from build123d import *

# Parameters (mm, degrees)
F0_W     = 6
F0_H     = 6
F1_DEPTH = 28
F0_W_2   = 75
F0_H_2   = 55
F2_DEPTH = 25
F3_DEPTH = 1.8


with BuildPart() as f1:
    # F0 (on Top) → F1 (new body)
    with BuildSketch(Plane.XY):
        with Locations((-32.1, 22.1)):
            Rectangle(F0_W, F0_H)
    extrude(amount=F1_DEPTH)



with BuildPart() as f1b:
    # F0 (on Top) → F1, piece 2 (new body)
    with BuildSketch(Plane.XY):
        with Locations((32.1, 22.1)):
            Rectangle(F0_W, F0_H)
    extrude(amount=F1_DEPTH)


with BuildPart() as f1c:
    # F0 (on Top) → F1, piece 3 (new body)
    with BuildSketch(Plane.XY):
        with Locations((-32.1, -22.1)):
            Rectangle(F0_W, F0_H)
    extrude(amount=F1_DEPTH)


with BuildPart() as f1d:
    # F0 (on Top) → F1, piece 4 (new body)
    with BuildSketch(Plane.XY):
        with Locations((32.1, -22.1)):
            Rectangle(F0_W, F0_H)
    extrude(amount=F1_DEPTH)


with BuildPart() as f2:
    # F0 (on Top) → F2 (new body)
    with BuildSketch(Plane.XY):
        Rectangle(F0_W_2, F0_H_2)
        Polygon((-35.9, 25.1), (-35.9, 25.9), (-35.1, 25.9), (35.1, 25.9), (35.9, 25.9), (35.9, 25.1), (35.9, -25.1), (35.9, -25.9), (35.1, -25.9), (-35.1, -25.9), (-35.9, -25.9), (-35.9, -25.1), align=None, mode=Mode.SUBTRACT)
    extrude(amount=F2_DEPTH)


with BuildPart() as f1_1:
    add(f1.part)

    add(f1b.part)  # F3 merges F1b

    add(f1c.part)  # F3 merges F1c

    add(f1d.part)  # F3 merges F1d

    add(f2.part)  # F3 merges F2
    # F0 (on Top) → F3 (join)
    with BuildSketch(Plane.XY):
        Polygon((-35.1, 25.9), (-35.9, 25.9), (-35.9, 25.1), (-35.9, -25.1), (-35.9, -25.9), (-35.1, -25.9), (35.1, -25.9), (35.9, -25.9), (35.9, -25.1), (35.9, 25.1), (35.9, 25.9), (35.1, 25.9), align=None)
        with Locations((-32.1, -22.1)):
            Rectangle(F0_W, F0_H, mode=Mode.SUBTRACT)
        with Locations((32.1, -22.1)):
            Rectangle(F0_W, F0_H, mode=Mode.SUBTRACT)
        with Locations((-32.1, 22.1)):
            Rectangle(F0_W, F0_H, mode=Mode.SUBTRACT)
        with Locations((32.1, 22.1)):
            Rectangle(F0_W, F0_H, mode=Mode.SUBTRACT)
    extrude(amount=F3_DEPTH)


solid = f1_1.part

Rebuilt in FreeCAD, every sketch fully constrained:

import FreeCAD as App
import Part
import Sketcher

doc = App.newDocument("Part")
params = doc.addObject("Spreadsheet::Sheet", "Params")
for row, (alias, value) in enumerate([
    ("sketch1_width", "6 mm"),
    ("pad1_length", "28 mm"),
    ("sketch2_width", "6 mm"),
    ("pad2_length", "28 mm"),
    ("sketch3_width", "6 mm"),
    ("pad3_length", "28 mm"),
    ("sketch4_width", "6 mm"),
    ("pad4_length", "28 mm"),
    ("sketch5_width", "75 mm"),
    ("sketch5_height", "55 mm"),
    ("sketch5_width2", "71.8 mm"),
    ("sketch5_height2", "51.8 mm"),
    ("pad5_length", "25 mm"),
    ("sketch6_width", "6 mm"),
    ("sketch6_width2", "71.8 mm"),
    ("sketch6_height", "51.8 mm"),
    ("pad6_length", "1.8 mm"),
], start=1):
    params.set(f"A{row}", alias)
    params.set(f"B{row}", "=" + value)
    params.setAlias(f"B{row}", alias)

body = doc.addObject("PartDesign::Body", "Body")

sketch1 = body.newObject("Sketcher::SketchObject", "Sketch")
sketch1.AttachmentSupport = (doc.getObject("XY_Plane"), [""])
sketch1.MapMode = "FlatFace"
sketch1.addGeometry(Part.LineSegment(App.Vector(-35.1, 25.1, 0), App.Vector(-35.1, 19.1, 0)), False)
sketch1.addGeometry(Part.LineSegment(App.Vector(-35.1, 19.1, 0), App.Vector(-29.1, 19.1, 0)), False)
sketch1.addGeometry(Part.LineSegment(App.Vector(-29.1, 19.1, 0), App.Vector(-29.1, 25.1, 0)), False)
sketch1.addGeometry(Part.LineSegment(App.Vector(-29.1, 25.1, 0), App.Vector(-35.1, 25.1, 0)), False)
sketch1.addConstraint(Sketcher.Constraint("Coincident", 0, 2, 1, 1))
sketch1.addConstraint(Sketcher.Constraint("Coincident", 1, 2, 2, 1))
sketch1.addConstraint(Sketcher.Constraint("Coincident", 2, 2, 3, 1))
sketch1.addConstraint(Sketcher.Constraint("Coincident", 3, 2, 0, 1))
sketch1.addConstraint(Sketcher.Constraint("Vertical", 0))
sketch1.addConstraint(Sketcher.Constraint("Horizontal", 1))
sketch1.addConstraint(Sketcher.Constraint("Vertical", 2))
sketch1.addConstraint(Sketcher.Constraint("Horizontal", 3))
sketch1.addConstraint(Sketcher.Constraint("Equal", 3, 0))
sketch1.addConstraint(Sketcher.Constraint("DistanceX", 1, 1, 1, 2, 6.0))
sketch1.addConstraint(Sketcher.Constraint("DistanceX", 0, 2, -1, 1, 35.1))
sketch1.addConstraint(Sketcher.Constraint("DistanceY", -1, 1, 0, 2, 19.1))
sketch1.setExpression("Constraints[9]", "Params.sketch1_width")
pad1 = body.newObject("PartDesign::Pad", "Pad")
pad1.Profile = sketch1
pad1.setExpression("Length", "Params.pad1_length")
body2 = doc.addObject("PartDesign::Body", "Body001")

sketch2 = body2.newObject("Sketcher::SketchObject", "Sketch001")
sketch2.AttachmentSupport = (doc.getObject("XY_Plane001"), [""])
sketch2.MapMode = "FlatFace"
sketch2.addGeometry(Part.LineSegment(App.Vector(29.1, 25.1, 0), App.Vector(29.1, 19.1, 0)), False)
sketch2.addGeometry(Part.LineSegment(App.Vector(29.1, 19.1, 0), App.Vector(35.1, 19.1, 0)), False)
sketch2.addGeometry(Part.LineSegment(App.Vector(35.1, 19.1, 0), App.Vector(35.1, 25.1, 0)), False)
sketch2.addGeometry(Part.LineSegment(App.Vector(35.1, 25.1, 0), App.Vector(29.1, 25.1, 0)), False)
sketch2.addConstraint(Sketcher.Constraint("Coincident", 0, 2, 1, 1))
sketch2.addConstraint(Sketcher.Constraint("Coincident", 1, 2, 2, 1))
sketch2.addConstraint(Sketcher.Constraint("Coincident", 2, 2, 3, 1))
sketch2.addConstraint(Sketcher.Constraint("Coincident", 3, 2, 0, 1))
sketch2.addConstraint(Sketcher.Constraint("Vertical", 0))
sketch2.addConstraint(Sketcher.Constraint("Horizontal", 1))
sketch2.addConstraint(Sketcher.Constraint("Vertical", 2))
sketch2.addConstraint(Sketcher.Constraint("Horizontal", 3))
sketch2.addConstraint(Sketcher.Constraint("Equal", 3, 0))
sketch2.addConstraint(Sketcher.Constraint("DistanceX", 1, 1, 1, 2, 6.0))
sketch2.addConstraint(Sketcher.Constraint("DistanceX", -1, 1, 0, 2, 29.1))
sketch2.addConstraint(Sketcher.Constraint("DistanceY", -1, 1, 0, 2, 19.1))
sketch2.setExpression("Constraints[9]", "Params.sketch2_width")
pad2 = body2.newObject("PartDesign::Pad", "Pad001")
pad2.Profile = sketch2
pad2.setExpression("Length", "Params.pad2_length")
body3 = doc.addObject("PartDesign::Body", "Body002")

sketch3 = body3.newObject("Sketcher::SketchObject", "Sketch002")
sketch3.AttachmentSupport = (doc.getObject("XY_Plane002"), [""])
sketch3.MapMode = "FlatFace"
sketch3.addGeometry(Part.LineSegment(App.Vector(-35.1, -19.1, 0), App.Vector(-35.1, -25.1, 0)), False)
sketch3.addGeometry(Part.LineSegment(App.Vector(-35.1, -25.1, 0), App.Vector(-29.1, -25.1, 0)), False)
sketch3.addGeometry(Part.LineSegment(App.Vector(-29.1, -25.1, 0), App.Vector(-29.1, -19.1, 0)), False)
sketch3.addGeometry(Part.LineSegment(App.Vector(-29.1, -19.1, 0), App.Vector(-35.1, -19.1, 0)), False)
sketch3.addConstraint(Sketcher.Constraint("Coincident", 0, 2, 1, 1))
sketch3.addConstraint(Sketcher.Constraint("Coincident", 1, 2, 2, 1))
sketch3.addConstraint(Sketcher.Constraint("Coincident", 2, 2, 3, 1))
sketch3.addConstraint(Sketcher.Constraint("Coincident", 3, 2, 0, 1))
sketch3.addConstraint(Sketcher.Constraint("Vertical", 0))
sketch3.addConstraint(Sketcher.Constraint("Horizontal", 1))
sketch3.addConstraint(Sketcher.Constraint("Vertical", 2))
sketch3.addConstraint(Sketcher.Constraint("Horizontal", 3))
sketch3.addConstraint(Sketcher.Constraint("Equal", 3, 0))
sketch3.addConstraint(Sketcher.Constraint("DistanceX", 1, 1, 1, 2, 6.0))
sketch3.addConstraint(Sketcher.Constraint("DistanceX", 0, 2, -1, 1, 35.1))
sketch3.addConstraint(Sketcher.Constraint("DistanceY", 0, 2, -1, 1, 25.1))
sketch3.setExpression("Constraints[9]", "Params.sketch3_width")
pad3 = body3.newObject("PartDesign::Pad", "Pad002")
pad3.Profile = sketch3
pad3.setExpression("Length", "Params.pad3_length")
body4 = doc.addObject("PartDesign::Body", "Body003")

sketch4 = body4.newObject("Sketcher::SketchObject", "Sketch003")
sketch4.AttachmentSupport = (doc.getObject("XY_Plane003"), [""])
sketch4.MapMode = "FlatFace"
sketch4.addGeometry(Part.LineSegment(App.Vector(29.1, -19.1, 0), App.Vector(29.1, -25.1, 0)), False)
sketch4.addGeometry(Part.LineSegment(App.Vector(29.1, -25.1, 0), App.Vector(35.1, -25.1, 0)), False)
sketch4.addGeometry(Part.LineSegment(App.Vector(35.1, -25.1, 0), App.Vector(35.1, -19.1, 0)), False)
sketch4.addGeometry(Part.LineSegment(App.Vector(35.1, -19.1, 0), App.Vector(29.1, -19.1, 0)), False)
sketch4.addConstraint(Sketcher.Constraint("Coincident", 0, 2, 1, 1))
sketch4.addConstraint(Sketcher.Constraint("Coincident", 1, 2, 2, 1))
sketch4.addConstraint(Sketcher.Constraint("Coincident", 2, 2, 3, 1))
sketch4.addConstraint(Sketcher.Constraint("Coincident", 3, 2, 0, 1))
sketch4.addConstraint(Sketcher.Constraint("Vertical", 0))
sketch4.addConstraint(Sketcher.Constraint("Horizontal", 1))
sketch4.addConstraint(Sketcher.Constraint("Vertical", 2))
sketch4.addConstraint(Sketcher.Constraint("Horizontal", 3))
sketch4.addConstraint(Sketcher.Constraint("Equal", 3, 0))
sketch4.addConstraint(Sketcher.Constraint("DistanceX", 1, 1, 1, 2, 6.0))
sketch4.addConstraint(Sketcher.Constraint("DistanceX", -1, 1, 0, 2, 29.1))
sketch4.addConstraint(Sketcher.Constraint("DistanceY", 0, 2, -1, 1, 25.1))
sketch4.setExpression("Constraints[9]", "Params.sketch4_width")
pad4 = body4.newObject("PartDesign::Pad", "Pad003")
pad4.Profile = sketch4
pad4.setExpression("Length", "Params.pad4_length")
body5 = doc.addObject("PartDesign::Body", "Body004")

sketch5 = body5.newObject("Sketcher::SketchObject", "Sketch004")
sketch5.AttachmentSupport = (doc.getObject("XY_Plane004"), [""])
sketch5.MapMode = "FlatFace"
sketch5.addGeometry(Part.LineSegment(App.Vector(-37.5, 27.5, 0), App.Vector(-37.5, -27.5, 0)), False)
sketch5.addGeometry(Part.LineSegment(App.Vector(-37.5, -27.5, 0), App.Vector(37.5, -27.5, 0)), False)
sketch5.addGeometry(Part.LineSegment(App.Vector(37.5, -27.5, 0), App.Vector(37.5, 27.5, 0)), False)
sketch5.addGeometry(Part.LineSegment(App.Vector(37.5, 27.5, 0), App.Vector(-37.5, 27.5, 0)), False)
sketch5.addGeometry(Part.LineSegment(App.Vector(-35.9, -25.9, 0), App.Vector(-35.9, 25.9, 0)), False)
sketch5.addGeometry(Part.LineSegment(App.Vector(-35.9, 25.9, 0), App.Vector(35.9, 25.9, 0)), False)
sketch5.addGeometry(Part.LineSegment(App.Vector(35.9, 25.9, 0), App.Vector(35.9, -25.9, 0)), False)
sketch5.addGeometry(Part.LineSegment(App.Vector(35.9, -25.9, 0), App.Vector(-35.9, -25.9, 0)), False)
sketch5.addConstraint(Sketcher.Constraint("Coincident", 0, 2, 1, 1))
sketch5.addConstraint(Sketcher.Constraint("Coincident", 1, 2, 2, 1))
sketch5.addConstraint(Sketcher.Constraint("Coincident", 2, 2, 3, 1))
sketch5.addConstraint(Sketcher.Constraint("Coincident", 3, 2, 0, 1))
sketch5.addConstraint(Sketcher.Constraint("Coincident", 4, 2, 5, 1))
sketch5.addConstraint(Sketcher.Constraint("Coincident", 5, 2, 6, 1))
sketch5.addConstraint(Sketcher.Constraint("Coincident", 6, 2, 7, 1))
sketch5.addConstraint(Sketcher.Constraint("Coincident", 7, 2, 4, 1))
sketch5.addConstraint(Sketcher.Constraint("Vertical", 0))
sketch5.addConstraint(Sketcher.Constraint("Horizontal", 1))
sketch5.addConstraint(Sketcher.Constraint("Vertical", 2))
sketch5.addConstraint(Sketcher.Constraint("Horizontal", 3))
sketch5.addConstraint(Sketcher.Constraint("Vertical", 4))
sketch5.addConstraint(Sketcher.Constraint("Horizontal", 5))
sketch5.addConstraint(Sketcher.Constraint("Vertical", 6))
sketch5.addConstraint(Sketcher.Constraint("Horizontal", 7))
sketch5.addConstraint(Sketcher.Constraint("Symmetric", 0, 2, 2, 2, -1, 1))
sketch5.addConstraint(Sketcher.Constraint("Symmetric", 4, 2, 6, 2, -1, 1))
sketch5.addConstraint(Sketcher.Constraint("DistanceX", 1, 1, 1, 2, 75.0))
sketch5.addConstraint(Sketcher.Constraint("DistanceY", 0, 2, 0, 1, 55.0))
sketch5.addConstraint(Sketcher.Constraint("DistanceX", 5, 1, 5, 2, 71.8))
sketch5.addConstraint(Sketcher.Constraint("DistanceY", 4, 1, 4, 2, 51.8))
sketch5.setExpression("Constraints[18]", "Params.sketch5_width")
sketch5.setExpression("Constraints[19]", "Params.sketch5_height")
sketch5.setExpression("Constraints[20]", "Params.sketch5_width2")
sketch5.setExpression("Constraints[21]", "Params.sketch5_height2")
pad5 = body5.newObject("PartDesign::Pad", "Pad004")
pad5.Profile = sketch5
pad5.setExpression("Length", "Params.pad5_length")
body.AllowCompound = True
doc.recompute()

boolean = body.newObject("PartDesign::Boolean", "Boolean")
boolean.Type = "Fuse"
boolean.addObjects([body2])
doc.recompute()

boolean2 = body.newObject("PartDesign::Boolean", "Boolean001")
boolean2.Type = "Fuse"
boolean2.addObjects([body3])
doc.recompute()

boolean3 = body.newObject("PartDesign::Boolean", "Boolean002")
boolean3.Type = "Fuse"
boolean3.addObjects([body4])
doc.recompute()

boolean4 = body.newObject("PartDesign::Boolean", "Boolean003")
boolean4.Type = "Fuse"
boolean4.addObjects([body5])

sketch6 = body.newObject("Sketcher::SketchObject", "Sketch005")
sketch6.AttachmentSupport = (doc.getObject("XY_Plane"), [""])
sketch6.MapMode = "FlatFace"
sketch6.addGeometry(Part.LineSegment(App.Vector(-35.9, 25.9, 0), App.Vector(-35.9, -25.9, 0)), False)
sketch6.addGeometry(Part.LineSegment(App.Vector(-35.9, -25.9, 0), App.Vector(35.9, -25.9, 0)), False)
sketch6.addGeometry(Part.LineSegment(App.Vector(35.9, -25.9, 0), App.Vector(35.9, 25.9, 0)), False)
sketch6.addGeometry(Part.LineSegment(App.Vector(35.9, 25.9, 0), App.Vector(-35.9, 25.9, 0)), False)
sketch6.addGeometry(Part.LineSegment(App.Vector(-29.1, -25.1, 0), App.Vector(-35.1, -25.1, 0)), False)
sketch6.addGeometry(Part.LineSegment(App.Vector(-35.1, -25.1, 0), App.Vector(-35.1, -19.1, 0)), False)
sketch6.addGeometry(Part.LineSegment(App.Vector(-35.1, -19.1, 0), App.Vector(-29.1, -19.1, 0)), False)
sketch6.addGeometry(Part.LineSegment(App.Vector(-29.1, -19.1, 0), App.Vector(-29.1, -25.1, 0)), False)
sketch6.addGeometry(Part.LineSegment(App.Vector(35.1, -25.1, 0), App.Vector(29.1, -25.1, 0)), False)
sketch6.addGeometry(Part.LineSegment(App.Vector(29.1, -25.1, 0), App.Vector(29.1, -19.1, 0)), False)
sketch6.addGeometry(Part.LineSegment(App.Vector(29.1, -19.1, 0), App.Vector(35.1, -19.1, 0)), False)
sketch6.addGeometry(Part.LineSegment(App.Vector(35.1, -19.1, 0), App.Vector(35.1, -25.1, 0)), False)
sketch6.addGeometry(Part.LineSegment(App.Vector(-29.1, 19.1, 0), App.Vector(-35.1, 19.1, 0)), False)
sketch6.addGeometry(Part.LineSegment(App.Vector(-35.1, 19.1, 0), App.Vector(-35.1, 25.1, 0)), False)
sketch6.addGeometry(Part.LineSegment(App.Vector(-35.1, 25.1, 0), App.Vector(-29.1, 25.1, 0)), False)
sketch6.addGeometry(Part.LineSegment(App.Vector(-29.1, 25.1, 0), App.Vector(-29.1, 19.1, 0)), False)
sketch6.addGeometry(Part.LineSegment(App.Vector(35.1, 19.1, 0), App.Vector(29.1, 19.1, 0)), False)
sketch6.addGeometry(Part.LineSegment(App.Vector(29.1, 19.1, 0), App.Vector(29.1, 25.1, 0)), False)
sketch6.addGeometry(Part.LineSegment(App.Vector(29.1, 25.1, 0), App.Vector(35.1, 25.1, 0)), False)
sketch6.addGeometry(Part.LineSegment(App.Vector(35.1, 25.1, 0), App.Vector(35.1, 19.1, 0)), False)
sketch6.addConstraint(Sketcher.Constraint("Coincident", 0, 2, 1, 1))
sketch6.addConstraint(Sketcher.Constraint("Coincident", 1, 2, 2, 1))
sketch6.addConstraint(Sketcher.Constraint("Coincident", 2, 2, 3, 1))
sketch6.addConstraint(Sketcher.Constraint("Coincident", 3, 2, 0, 1))
sketch6.addConstraint(Sketcher.Constraint("Coincident", 4, 2, 5, 1))
sketch6.addConstraint(Sketcher.Constraint("Coincident", 5, 2, 6, 1))
sketch6.addConstraint(Sketcher.Constraint("Coincident", 6, 2, 7, 1))
sketch6.addConstraint(Sketcher.Constraint("Coincident", 7, 2, 4, 1))
sketch6.addConstraint(Sketcher.Constraint("Coincident", 8, 2, 9, 1))
sketch6.addConstraint(Sketcher.Constraint("Coincident", 9, 2, 10, 1))
sketch6.addConstraint(Sketcher.Constraint("Coincident", 10, 2, 11, 1))
sketch6.addConstraint(Sketcher.Constraint("Coincident", 11, 2, 8, 1))
sketch6.addConstraint(Sketcher.Constraint("Coincident", 12, 2, 13, 1))
sketch6.addConstraint(Sketcher.Constraint("Coincident", 13, 2, 14, 1))
sketch6.addConstraint(Sketcher.Constraint("Coincident", 14, 2, 15, 1))
sketch6.addConstraint(Sketcher.Constraint("Coincident", 15, 2, 12, 1))
sketch6.addConstraint(Sketcher.Constraint("Coincident", 16, 2, 17, 1))
sketch6.addConstraint(Sketcher.Constraint("Coincident", 17, 2, 18, 1))
sketch6.addConstraint(Sketcher.Constraint("Coincident", 18, 2, 19, 1))
sketch6.addConstraint(Sketcher.Constraint("Coincident", 19, 2, 16, 1))
sketch6.addConstraint(Sketcher.Constraint("Vertical", 0))
sketch6.addConstraint(Sketcher.Constraint("Horizontal", 1))
sketch6.addConstraint(Sketcher.Constraint("Vertical", 2))
sketch6.addConstraint(Sketcher.Constraint("Horizontal", 3))
sketch6.addConstraint(Sketcher.Constraint("Horizontal", 4))
sketch6.addConstraint(Sketcher.Constraint("Vertical", 5))
sketch6.addConstraint(Sketcher.Constraint("Horizontal", 6))
sketch6.addConstraint(Sketcher.Constraint("Vertical", 7))
sketch6.addConstraint(Sketcher.Constraint("Horizontal", 8))
sketch6.addConstraint(Sketcher.Constraint("Vertical", 9))
sketch6.addConstraint(Sketcher.Constraint("Horizontal", 10))
sketch6.addConstraint(Sketcher.Constraint("Vertical", 11))
sketch6.addConstraint(Sketcher.Constraint("Horizontal", 12))
sketch6.addConstraint(Sketcher.Constraint("Vertical", 13))
sketch6.addConstraint(Sketcher.Constraint("Horizontal", 14))
sketch6.addConstraint(Sketcher.Constraint("Vertical", 15))
sketch6.addConstraint(Sketcher.Constraint("Horizontal", 16))
sketch6.addConstraint(Sketcher.Constraint("Vertical", 17))
sketch6.addConstraint(Sketcher.Constraint("Horizontal", 18))
sketch6.addConstraint(Sketcher.Constraint("Vertical", 19))
sketch6.addConstraint(Sketcher.Constraint("Symmetric", 0, 2, 2, 2, -1, 1))
sketch6.addConstraint(Sketcher.Constraint("Symmetric", 10, 2, 12, 2, -1, 1))
sketch6.addConstraint(Sketcher.Constraint("Symmetric", 8, 2, 14, 2, -1, 1))
sketch6.addConstraint(Sketcher.Constraint("Symmetric", 6, 2, 16, 2, -1, 1))
sketch6.addConstraint(Sketcher.Constraint("Symmetric", 4, 2, 18, 2, -1, 1))
sketch6.addConstraint(Sketcher.Constraint("Symmetric", 7, 2, 8, 2, -2))
sketch6.addConstraint(Sketcher.Constraint("Symmetric", 5, 2, 10, 2, -2))
sketch6.addConstraint(Sketcher.Constraint("Equal", 18, 5))
sketch6.addConstraint(Sketcher.Constraint("DistanceX", 4, 2, 4, 1, 6.0))
sketch6.addConstraint(Sketcher.Constraint("DistanceX", 1, 1, 1, 2, 71.8))
sketch6.addConstraint(Sketcher.Constraint("DistanceY", 0, 2, 0, 1, 51.8))
sketch6.addConstraint(Sketcher.Constraint("DistanceY", 4, 2, 3, 2, 51.0))
sketch6.addConstraint(Sketcher.Constraint("DistanceX", 4, 2, 1, 2, 71.0))
sketch6.setExpression("Constraints[48]", "Params.sketch6_width")
sketch6.setExpression("Constraints[49]", "Params.sketch6_width2")
sketch6.setExpression("Constraints[50]", "Params.sketch6_height")
pad6 = body.newObject("PartDesign::Pad", "Pad005")
pad6.Profile = sketch6
pad6.setExpression("Length", "Params.pad6_length")

doc.recompute()
